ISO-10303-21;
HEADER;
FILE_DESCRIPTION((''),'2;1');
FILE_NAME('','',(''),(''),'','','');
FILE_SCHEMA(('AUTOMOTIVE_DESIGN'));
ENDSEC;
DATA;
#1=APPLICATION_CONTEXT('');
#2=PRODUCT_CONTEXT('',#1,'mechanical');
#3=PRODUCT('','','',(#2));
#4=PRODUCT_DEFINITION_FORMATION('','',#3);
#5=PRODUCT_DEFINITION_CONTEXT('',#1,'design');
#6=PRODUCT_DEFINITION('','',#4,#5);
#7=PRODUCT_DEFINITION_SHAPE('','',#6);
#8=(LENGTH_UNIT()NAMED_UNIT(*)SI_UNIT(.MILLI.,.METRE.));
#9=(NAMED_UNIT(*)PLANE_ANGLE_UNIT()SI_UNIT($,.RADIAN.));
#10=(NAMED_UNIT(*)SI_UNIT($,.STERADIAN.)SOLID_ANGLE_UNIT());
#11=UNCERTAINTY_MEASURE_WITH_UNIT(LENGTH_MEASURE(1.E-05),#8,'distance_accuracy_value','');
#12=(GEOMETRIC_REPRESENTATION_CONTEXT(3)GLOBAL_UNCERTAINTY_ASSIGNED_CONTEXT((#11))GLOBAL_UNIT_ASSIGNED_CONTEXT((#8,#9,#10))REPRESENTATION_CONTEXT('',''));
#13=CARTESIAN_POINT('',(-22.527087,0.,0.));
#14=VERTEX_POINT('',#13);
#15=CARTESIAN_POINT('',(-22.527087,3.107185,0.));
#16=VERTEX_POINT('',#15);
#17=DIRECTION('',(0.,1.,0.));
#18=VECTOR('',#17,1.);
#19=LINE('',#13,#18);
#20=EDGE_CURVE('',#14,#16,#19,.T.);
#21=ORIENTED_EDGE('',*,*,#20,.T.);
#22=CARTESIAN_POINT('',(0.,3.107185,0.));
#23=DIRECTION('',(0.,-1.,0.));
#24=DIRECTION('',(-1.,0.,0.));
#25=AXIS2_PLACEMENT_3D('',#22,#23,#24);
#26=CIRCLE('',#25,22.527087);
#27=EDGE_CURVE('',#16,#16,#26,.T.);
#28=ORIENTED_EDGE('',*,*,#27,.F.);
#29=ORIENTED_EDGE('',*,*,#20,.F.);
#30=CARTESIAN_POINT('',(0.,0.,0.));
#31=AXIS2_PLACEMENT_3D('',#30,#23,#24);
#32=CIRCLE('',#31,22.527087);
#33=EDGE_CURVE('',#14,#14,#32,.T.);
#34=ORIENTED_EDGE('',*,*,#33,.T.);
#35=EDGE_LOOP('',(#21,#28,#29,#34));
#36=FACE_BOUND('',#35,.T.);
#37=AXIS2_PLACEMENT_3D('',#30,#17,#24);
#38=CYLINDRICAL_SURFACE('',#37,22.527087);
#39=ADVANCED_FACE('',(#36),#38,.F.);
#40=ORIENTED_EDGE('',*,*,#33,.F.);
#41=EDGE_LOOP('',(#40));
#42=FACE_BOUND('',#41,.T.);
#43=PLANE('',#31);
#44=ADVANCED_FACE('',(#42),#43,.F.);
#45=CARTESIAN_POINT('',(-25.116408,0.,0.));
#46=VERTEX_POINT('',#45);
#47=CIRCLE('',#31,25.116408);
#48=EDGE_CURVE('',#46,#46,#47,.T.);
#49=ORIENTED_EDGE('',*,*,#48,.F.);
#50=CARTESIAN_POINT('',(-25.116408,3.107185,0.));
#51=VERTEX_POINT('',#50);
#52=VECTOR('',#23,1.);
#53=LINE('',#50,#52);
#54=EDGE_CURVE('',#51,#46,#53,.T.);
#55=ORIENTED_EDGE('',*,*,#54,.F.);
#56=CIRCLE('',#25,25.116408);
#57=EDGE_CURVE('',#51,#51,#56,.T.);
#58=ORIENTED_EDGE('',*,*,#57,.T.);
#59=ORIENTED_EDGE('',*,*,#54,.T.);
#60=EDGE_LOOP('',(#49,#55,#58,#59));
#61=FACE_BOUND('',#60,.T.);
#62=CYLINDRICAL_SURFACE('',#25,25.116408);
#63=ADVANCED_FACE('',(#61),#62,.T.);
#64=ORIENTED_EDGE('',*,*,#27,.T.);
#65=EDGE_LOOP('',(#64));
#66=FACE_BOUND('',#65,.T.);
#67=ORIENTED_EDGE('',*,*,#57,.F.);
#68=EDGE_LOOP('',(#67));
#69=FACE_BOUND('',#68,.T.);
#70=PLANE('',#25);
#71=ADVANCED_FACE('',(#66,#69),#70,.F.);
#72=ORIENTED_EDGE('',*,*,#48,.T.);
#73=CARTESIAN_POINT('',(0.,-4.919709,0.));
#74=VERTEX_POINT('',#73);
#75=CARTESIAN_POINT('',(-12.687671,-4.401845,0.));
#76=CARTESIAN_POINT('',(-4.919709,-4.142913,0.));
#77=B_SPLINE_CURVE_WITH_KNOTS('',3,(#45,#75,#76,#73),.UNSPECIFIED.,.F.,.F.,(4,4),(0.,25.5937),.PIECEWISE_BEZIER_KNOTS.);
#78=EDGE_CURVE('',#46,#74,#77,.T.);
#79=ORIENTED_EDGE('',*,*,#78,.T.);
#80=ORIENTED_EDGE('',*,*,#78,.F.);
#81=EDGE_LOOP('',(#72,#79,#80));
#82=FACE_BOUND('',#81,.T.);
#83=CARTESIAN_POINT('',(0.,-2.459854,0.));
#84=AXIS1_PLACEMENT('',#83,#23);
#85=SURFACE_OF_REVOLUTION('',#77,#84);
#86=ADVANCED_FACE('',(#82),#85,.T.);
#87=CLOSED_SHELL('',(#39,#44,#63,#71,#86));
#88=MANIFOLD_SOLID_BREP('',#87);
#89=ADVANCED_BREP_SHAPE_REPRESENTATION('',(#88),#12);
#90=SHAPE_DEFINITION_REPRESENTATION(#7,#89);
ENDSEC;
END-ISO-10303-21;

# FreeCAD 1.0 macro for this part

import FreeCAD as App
import Part
import Sketcher
Q = App.Units.Quantity

doc = App.newDocument("Part")
body = doc.addObject("PartDesign::Body", "Body")

# Sketch on XY plane
sketch1 = doc.addObject("Sketcher::SketchObject", "Sketch")
body.addObject(sketch1)
sketch1.AttachmentSupport = (doc.XY_Plane, [""])
sketch1.MapMode = "FlatFace"
sketch1.addGeometry(Part.LineSegment(App.Vector(0, -4.919709, 0), App.Vector(0, 0, 0)), False)
sketch1.addGeometry(Part.LineSegment(App.Vector(0, 0, 0), App.Vector(-22.527087, 0, 0)), False)
sketch1.addGeometry(Part.LineSegment(App.Vector(-22.527087, 0, 0), App.Vector(-22.527087, 3.107185, 0)), False)
sketch1.addGeometry(Part.LineSegment(App.Vector(-22.527087, 3.107185, 0), App.Vector(-25.116408, 3.107185, 0)), False)
sketch1.addGeometry(Part.LineSegment(App.Vector(-25.116408, 3.107185, 0), App.Vector(-25.116408, 0, 0)), False)
sketch1.addGeometry(Part.BSplineCurve([App.Vector(-25.116408, 0, 0), App.Vector(-12.687671, -4.401845, 0), App.Vector(-4.919709, -4.142913, 0), App.Vector(0, -4.919709, 0)], [4, 4], [0, 25.5937], False, 3, [1, 1, 1, 1], False), False)
sketch1.addConstraint(Sketcher.Constraint("Block", 5))
sketch1.addConstraint(Sketcher.Constraint("Coincident", 0, 2, 1, 1))
sketch1.addConstraint(Sketcher.Constraint("Coincident", 1, 2, 2, 1))
sketch1.addConstraint(Sketcher.Constraint("Coincident", 2, 2, 3, 1))
sketch1.addConstraint(Sketcher.Constraint("Coincident", 3, 2, 4, 1))
sketch1.addConstraint(Sketcher.Constraint("Coincident", 4, 2, 5, 1))
sketch1.addConstraint(Sketcher.Constraint("Coincident", 5, 2, 0, 1))
sketch1.addConstraint(Sketcher.Constraint("Vertical", 0))
sketch1.addConstraint(Sketcher.Constraint("Horizontal", 1))
sketch1.addConstraint(Sketcher.Constraint("Vertical", 2))
sketch1.addConstraint(Sketcher.Constraint("Horizontal", 3))
sketch1.addConstraint(Sketcher.Constraint("Vertical", 4))
sketch1.addConstraint(Sketcher.Constraint("PointOnObject", 1, 2, -1))
sketch1.addConstraint(Sketcher.Constraint("DistanceX", 3, 2, 3, 1, Q("2.589321 mm")))
sketch1.addConstraint(Sketcher.Constraint("DistanceY", 2, 1, 2, 2, Q("3.107185 mm")))
revolution = doc.addObject("PartDesign::Revolution", "Revolution")
body.addObject(revolution)
revolution.Profile = sketch1
revolution.ReferenceAxis = (sketch1, ["V_Axis"])
revolution.Angle = 360

doc.recompute()
